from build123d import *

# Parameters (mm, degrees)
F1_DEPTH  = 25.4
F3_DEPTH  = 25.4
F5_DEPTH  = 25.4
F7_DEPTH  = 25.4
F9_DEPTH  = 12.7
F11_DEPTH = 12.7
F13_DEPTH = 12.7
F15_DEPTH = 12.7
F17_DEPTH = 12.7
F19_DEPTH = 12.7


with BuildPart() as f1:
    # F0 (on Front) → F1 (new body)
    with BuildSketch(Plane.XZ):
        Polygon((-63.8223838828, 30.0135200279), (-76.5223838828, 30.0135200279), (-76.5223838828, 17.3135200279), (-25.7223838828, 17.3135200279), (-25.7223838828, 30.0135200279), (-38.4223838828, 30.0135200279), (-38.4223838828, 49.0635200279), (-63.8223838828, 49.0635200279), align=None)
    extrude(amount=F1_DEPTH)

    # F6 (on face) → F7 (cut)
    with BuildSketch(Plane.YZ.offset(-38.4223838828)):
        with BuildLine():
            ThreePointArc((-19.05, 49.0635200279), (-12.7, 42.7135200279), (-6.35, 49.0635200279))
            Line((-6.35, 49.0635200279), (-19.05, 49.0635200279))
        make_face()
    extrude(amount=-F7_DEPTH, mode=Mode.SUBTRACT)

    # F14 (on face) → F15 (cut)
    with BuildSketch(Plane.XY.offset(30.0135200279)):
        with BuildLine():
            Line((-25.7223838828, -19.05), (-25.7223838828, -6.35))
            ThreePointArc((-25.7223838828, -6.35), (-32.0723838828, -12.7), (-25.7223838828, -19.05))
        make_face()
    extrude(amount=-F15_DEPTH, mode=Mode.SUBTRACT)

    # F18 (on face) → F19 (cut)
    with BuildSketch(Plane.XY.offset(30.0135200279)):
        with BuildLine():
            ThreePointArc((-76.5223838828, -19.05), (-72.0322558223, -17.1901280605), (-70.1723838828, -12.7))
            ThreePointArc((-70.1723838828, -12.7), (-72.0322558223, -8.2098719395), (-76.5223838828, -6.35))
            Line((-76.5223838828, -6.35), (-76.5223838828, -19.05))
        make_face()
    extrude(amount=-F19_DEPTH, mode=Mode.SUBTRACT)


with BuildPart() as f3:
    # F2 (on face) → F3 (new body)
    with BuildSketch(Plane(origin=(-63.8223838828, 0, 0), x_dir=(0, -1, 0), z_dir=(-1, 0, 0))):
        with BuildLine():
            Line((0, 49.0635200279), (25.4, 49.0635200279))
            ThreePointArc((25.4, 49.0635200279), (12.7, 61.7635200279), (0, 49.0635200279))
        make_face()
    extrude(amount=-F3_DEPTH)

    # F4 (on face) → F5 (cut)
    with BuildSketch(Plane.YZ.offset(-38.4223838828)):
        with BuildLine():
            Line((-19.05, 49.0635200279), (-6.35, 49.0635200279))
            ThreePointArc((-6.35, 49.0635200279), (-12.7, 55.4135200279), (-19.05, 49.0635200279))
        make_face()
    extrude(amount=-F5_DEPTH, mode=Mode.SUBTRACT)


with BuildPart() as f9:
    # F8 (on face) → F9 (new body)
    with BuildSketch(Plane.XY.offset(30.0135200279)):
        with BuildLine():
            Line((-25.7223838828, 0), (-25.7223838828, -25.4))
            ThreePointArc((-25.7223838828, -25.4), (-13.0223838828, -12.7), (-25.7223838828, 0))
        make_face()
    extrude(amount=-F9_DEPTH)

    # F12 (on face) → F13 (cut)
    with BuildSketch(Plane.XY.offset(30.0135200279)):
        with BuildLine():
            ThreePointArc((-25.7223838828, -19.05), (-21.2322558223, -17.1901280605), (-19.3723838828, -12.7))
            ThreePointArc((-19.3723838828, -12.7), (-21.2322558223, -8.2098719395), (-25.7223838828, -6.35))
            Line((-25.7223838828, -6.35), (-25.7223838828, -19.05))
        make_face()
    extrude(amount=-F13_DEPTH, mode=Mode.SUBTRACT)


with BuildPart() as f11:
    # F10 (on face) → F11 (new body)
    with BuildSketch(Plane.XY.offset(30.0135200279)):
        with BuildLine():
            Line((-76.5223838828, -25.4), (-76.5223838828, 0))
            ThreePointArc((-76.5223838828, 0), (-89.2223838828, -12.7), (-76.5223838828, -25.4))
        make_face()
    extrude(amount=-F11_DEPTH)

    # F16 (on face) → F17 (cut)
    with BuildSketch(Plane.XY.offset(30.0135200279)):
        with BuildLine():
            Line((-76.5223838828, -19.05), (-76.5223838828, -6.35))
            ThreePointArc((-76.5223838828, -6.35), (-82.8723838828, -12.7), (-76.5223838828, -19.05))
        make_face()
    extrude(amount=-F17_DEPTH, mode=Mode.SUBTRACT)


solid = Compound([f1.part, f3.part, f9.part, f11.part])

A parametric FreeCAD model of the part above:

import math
import FreeCAD as App
import Part
import Sketcher
Q = App.Units.Quantity


def add_polygon(sketch, points):
    """Adds a closed chain of lines whose ends are joined by coincident constraints."""
    first, n = sketch.GeometryCount, len(points)
    for a, b in zip(points, points[1:] + points[:1]):
        sketch.addGeometry(Part.LineSegment(App.Vector(*a, 0), App.Vector(*b, 0)), False)
    for i in range(n):
        sketch.addConstraint(Sketcher.Constraint("Coincident", first + i, 2, first + (i + 1) % n, 1))

doc = App.newDocument("Part")
body = doc.addObject("PartDesign::Body", "Body")

# Sketch on XZ plane
sketch1 = body.newObject("Sketcher::SketchObject", "Sketch")
sketch1.AttachmentSupport = (doc.getObject("XZ_Plane"), [""])
sketch1.MapMode = "FlatFace"
add_polygon(sketch1, [(-64, 30), (-77, 30), (-77, 17), (-26, 17), (-26, 30), (-38, 30), (-38, 49), (-64, 49)])  # lines 0-7
sketch1.addConstraint([
    Sketcher.Constraint("Horizontal", 0),
    Sketcher.Constraint("Vertical", 1),
    Sketcher.Constraint("Horizontal", 2),
    Sketcher.Constraint("Vertical", 3),
    Sketcher.Constraint("Horizontal", 4),
    Sketcher.Constraint("Vertical", 5),
    Sketcher.Constraint("Horizontal", 6),
    Sketcher.Constraint("Vertical", 7),
    Sketcher.Constraint("Horizontal", 0, 2, 3, 2),
    Sketcher.Constraint("Equal", 0, 4),
    Sketcher.Constraint("Equal", 4, 1),
    Sketcher.Constraint("DistanceX", 2, 1, 2, 2, Q("2 in")),
    Sketcher.Constraint("DistanceX", 6, 2, 6, 1, Q("1 in")),
    Sketcher.Constraint("DistanceY", 5, 1, 5, 2, Q("0.75 in")),
    Sketcher.Constraint("DistanceY", -1, 1, 0, 2, 30.01352),
    Sketcher.Constraint("DistanceX", 0, 2, -1, 1, 76.522384),
])
pad1 = body.newObject("PartDesign::Pad", "Pad")
pad1.Profile = sketch1
pad1.Length = Q("1 in")

# Sketch on YZ plane
sketch2 = body.newObject("Sketcher::SketchObject", "Sketch001")
sketch2.AttachmentSupport = (doc.getObject("YZ_Plane"), [""])
sketch2.MapMode = "FlatFace"
sketch2.AttachmentOffset = App.Placement(App.Vector(0, 0, -38.422384), App.Rotation())
sketch2.addGeometry([
    Part.ArcOfCircle(Part.Circle(App.Vector(-13, 49, 0), App.Vector(0, 0, 1), 6), math.radians(180), math.radians(360)),
    Part.LineSegment(App.Vector(-6, 49, 0), App.Vector(-19, 49, 0)),
], False)
sketch2.addConstraint([
    Sketcher.Constraint("Coincident", 0, 1, 1, 2),
    Sketcher.Constraint("Coincident", 1, 1, 0, 2),
    Sketcher.Constraint("Horizontal", 1),
    Sketcher.Constraint("Radius", 0, Q("0.25 in")),
    Sketcher.Constraint("DistanceX", 0, 3, -1, 1, Q("0.5 in")),
    Sketcher.Constraint("DistanceY", -1, 1, 0, 3, 49.06352),
    Sketcher.Constraint("DistanceY", -1, 1, 0, 1, 49.06352),
])
pocket1 = body.newObject("PartDesign::Pocket", "Pocket")
pocket1.Profile = sketch2
pocket1.Length = Q("1 in")

# Sketch on XY plane
sketch3 = body.newObject("Sketcher::SketchObject", "Sketch002")
sketch3.AttachmentSupport = (doc.getObject("XY_Plane"), [""])
sketch3.MapMode = "FlatFace"
sketch3.AttachmentOffset = App.Placement(App.Vector(0, 0, 30.01352), App.Rotation())
sketch3.addGeometry([
    Part.LineSegment(App.Vector(-26, -19, 0), App.Vector(-26, -6, 0)),
    Part.ArcOfCircle(Part.Circle(App.Vector(-26, -13, 0), App.Vector(0, 0, 1), 6), math.radians(90), math.radians(270)),
], False)
sketch3.addConstraint([
    Sketcher.Constraint("Coincident", 0, 1, 1, 2),
    Sketcher.Constraint("Coincident", 1, 1, 0, 2),
    Sketcher.Constraint("Vertical", 0),
    Sketcher.Constraint("Vertical", 1, 3, 0, 1),
    Sketcher.Constraint("Radius", 1, Q("0.25 in")),
    Sketcher.Constraint("DistanceY", 1, 3, -1, 1, Q("0.5 in")),
    Sketcher.Constraint("DistanceX", 1, 3, -1, 1, 25.722384),
])
pocket2 = body.newObject("PartDesign::Pocket", "Pocket001")
pocket2.Profile = sketch3
pocket2.Length = Q("0.5 in")

# Sketch on XY plane
sketch4 = body.newObject("Sketcher::SketchObject", "Sketch003")
sketch4.AttachmentSupport = (doc.getObject("XY_Plane"), [""])
sketch4.MapMode = "FlatFace"
sketch4.AttachmentOffset = App.Placement(App.Vector(0, 0, 30.01352), App.Rotation())
sketch4.addGeometry([
    Part.ArcOfCircle(Part.Circle(App.Vector(-77, -13, 0), App.Vector(0, 0, 1), 6), math.radians(-90), math.radians(0)),
    Part.ArcOfCircle(Part.Circle(App.Vector(-77, -13, 0), App.Vector(0, 0, 1), 6), math.radians(0), math.radians(90)),
    Part.LineSegment(App.Vector(-77, -6, 0), App.Vector(-77, -19, 0)),
], False)
sketch4.addConstraint([
    Sketcher.Constraint("Tangent", 0, 2, 1, 1),
    Sketcher.Constraint("Coincident", 1, 2, 2, 1),
    Sketcher.Constraint("Coincident", 2, 2, 0, 1),
    Sketcher.Constraint("Vertical", 2),
    Sketcher.Constraint("Equal", 0, 1),
    Sketcher.Constraint("Horizontal", 1, 3, 0, 2),
    Sketcher.Constraint("Vertical", 0, 3, 1, 2),
    Sketcher.Constraint("Radius", 0, Q("0.25 in")),
    Sketcher.Constraint("DistanceY", 0, 3, -1, 1, Q("0.5 in")),
    Sketcher.Constraint("DistanceX", 0, 3, -1, 1, 76.522384),
])
pocket3 = body.newObject("PartDesign::Pocket", "Pocket002")
pocket3.Profile = sketch4
pocket3.Length = Q("0.5 in")
body2 = doc.addObject("PartDesign::Body", "Body001")

# Sketch on YZ plane
sketch5 = body2.newObject("Sketcher::SketchObject", "Sketch004")
sketch5.AttachmentSupport = (doc.getObject("YZ_Plane001"), [""])
sketch5.MapMode = "FlatFace"
sketch5.AttachmentOffset = App.Placement(App.Vector(0, 0, -63.822384), App.Rotation())
sketch5.addGeometry([
    Part.LineSegment(App.Vector(0, 49, 0), App.Vector(-25, 49, 0)),
    Part.ArcOfCircle(Part.Circle(App.Vector(-13, 49, 0), App.Vector(0, 0, 1), 13), math.radians(0), math.radians(180)),
], False)
sketch5.addConstraint([
    Sketcher.Constraint("Coincident", 0, 1, 1, 1),
    Sketcher.Constraint("Coincident", 1, 2, 0, 2),
    Sketcher.Constraint("Horizontal", 0),
    Sketcher.Constraint("PointOnObject", 0, 1, -2),
    Sketcher.Constraint("Horizontal", 1, 3, 0, 1),
    Sketcher.Constraint("Radius", 1, Q("0.5 in")),
    Sketcher.Constraint("DistanceY", -1, 1, 1, 3, 49.06352),
])
pad2 = body2.newObject("PartDesign::Pad", "Pad001")
pad2.Profile = sketch5
pad2.Length = Q("1 in")

# Sketch on YZ plane
sketch6 = body2.newObject("Sketcher::SketchObject", "Sketch005")
sketch6.AttachmentSupport = (doc.getObject("YZ_Plane001"), [""])
sketch6.MapMode = "FlatFace"
sketch6.AttachmentOffset = App.Placement(App.Vector(0, 0, -38.422384), App.Rotation())
sketch6.addGeometry([
    Part.LineSegment(App.Vector(-19, 49, 0), App.Vector(-6, 49, 0)),
    Part.ArcOfCircle(Part.Circle(App.Vector(-13, 49, 0), App.Vector(0, 0, 1), 6), math.radians(0), math.radians(180)),
], False)
sketch6.addConstraint([
    Sketcher.Constraint("Coincident", 0, 1, 1, 2),
    Sketcher.Constraint("Coincident", 1, 1, 0, 2),
    Sketcher.Constraint("Horizontal", 0),
    Sketcher.Constraint("Horizontal", 1, 3, 0, 1),
    Sketcher.Constraint("Radius", 1, Q("0.25 in")),
    Sketcher.Constraint("DistanceX", 1, 3, -1, 1, Q("0.5 in")),
    Sketcher.Constraint("DistanceY", -1, 1, 1, 3, 49.06352),
])
pocket4 = body2.newObject("PartDesign::Pocket", "Pocket003")
pocket4.Profile = sketch6
pocket4.Length = Q("1 in")
body3 = doc.addObject("PartDesign::Body", "Body002")

# Sketch on XY plane
sketch7 = body3.newObject("Sketcher::SketchObject", "Sketch006")
sketch7.AttachmentSupport = (doc.getObject("XY_Plane002"), [""])
sketch7.MapMode = "FlatFace"
sketch7.AttachmentOffset = App.Placement(App.Vector(0, 0, 30.01352), App.Rotation())
sketch7.addGeometry([
    Part.LineSegment(App.Vector(-26, 0, 0), App.Vector(-26, -25, 0)),
    Part.ArcOfCircle(Part.Circle(App.Vector(-26, -13, 0), App.Vector(0, 0, 1), 13), math.radians(-90), math.radians(90)),
], False)
sketch7.addConstraint([
    Sketcher.Constraint("Coincident", 0, 1, 1, 2),
    Sketcher.Constraint("Coincident", 1, 1, 0, 2),
    Sketcher.Constraint("Vertical", 0),
    Sketcher.Constraint("PointOnObject", 0, 1, -1),
    Sketcher.Constraint("Vertical", 1, 3, 0, 1),
    Sketcher.Constraint("Radius", 1, Q("0.5 in")),
    Sketcher.Constraint("DistanceX", 1, 3, -1, 1, 25.722384),
])
pad3 = body3.newObject("PartDesign::Pad", "Pad002")
pad3.Profile = sketch7
pad3.Length = Q("0.5 in")
pad3.Reversed = True

# Sketch on XY plane
sketch8 = body3.newObject("Sketcher::SketchObject", "Sketch007")
sketch8.AttachmentSupport = (doc.getObject("XY_Plane002"), [""])
sketch8.MapMode = "FlatFace"
sketch8.AttachmentOffset = App.Placement(App.Vector(0, 0, 30.01352), App.Rotation())
sketch8.addGeometry([
    Part.ArcOfCircle(Part.Circle(App.Vector(-26, -13, 0), App.Vector(0, 0, 1), 6), math.radians(-90), math.radians(0)),
    Part.ArcOfCircle(Part.Circle(App.Vector(-26, -13, 0), App.Vector(0, 0, 1), 6), math.radians(0), math.radians(90)),
    Part.LineSegment(App.Vector(-26, -6, 0), App.Vector(-26, -19, 0)),
], False)
sketch8.addConstraint([
    Sketcher.Constraint("Tangent", 0, 2, 1, 1),
    Sketcher.Constraint("Coincident", 1, 2, 2, 1),
    Sketcher.Constraint("Coincident", 2, 2, 0, 1),
    Sketcher.Constraint("Vertical", 2),
    Sketcher.Constraint("Equal", 0, 1),
    Sketcher.Constraint("Horizontal", 1, 3, 0, 2),
    Sketcher.Constraint("Vertical", 0, 3, 1, 2),
    Sketcher.Constraint("Radius", 0, Q("0.25 in")),
    Sketcher.Constraint("DistanceY", 0, 3, -1, 1, Q("0.5 in")),
    Sketcher.Constraint("DistanceX", 0, 3, -1, 1, 25.722384),
])
pocket5 = body3.newObject("PartDesign::Pocket", "Pocket004")
pocket5.Profile = sketch8
pocket5.Length = Q("0.5 in")
body4 = doc.addObject("PartDesign::Body", "Body003")

# Sketch on XY plane
sketch9 = body4.newObject("Sketcher::SketchObject", "Sketch008")
sketch9.AttachmentSupport = (doc.getObject("XY_Plane003"), [""])
sketch9.MapMode = "FlatFace"
sketch9.AttachmentOffset = App.Placement(App.Vector(0, 0, 30.01352), App.Rotation())
sketch9.addGeometry([
    Part.LineSegment(App.Vector(-77, -25, 0), App.Vector(-77, 0, 0)),
    Part.ArcOfCircle(Part.Circle(App.Vector(-77, -13, 0), App.Vector(0, 0, 1), 13), math.radians(90), math.radians(270)),
], False)
sketch9.addConstraint([
    Sketcher.Constraint("Coincident", 0, 1, 1, 2),
    Sketcher.Constraint("Coincident", 1, 1, 0, 2),
    Sketcher.Constraint("Vertical", 0),
    Sketcher.Constraint("PointOnObject", 1, 1, -1),
    Sketcher.Constraint("Vertical", 1, 3, 0, 1),
    Sketcher.Constraint("Radius", 1, Q("0.5 in")),
    Sketcher.Constraint("DistanceX", 1, 3, -1, 1, 76.522384),
])
pad4 = body4.newObject("PartDesign::Pad", "Pad003")
pad4.Profile = sketch9
pad4.Length = Q("0.5 in")
pad4.Reversed = True

# Sketch on XY plane
sketch10 = body4.newObject("Sketcher::SketchObject", "Sketch009")
sketch10.AttachmentSupport = (doc.getObject("XY_Plane003"), [""])
sketch10.MapMode = "FlatFace"
sketch10.AttachmentOffset = App.Placement(App.Vector(0, 0, 30.01352), App.Rotation())
sketch10.addGeometry([
    Part.LineSegment(App.Vector(-77, -19, 0), App.Vector(-77, -6, 0)),
    Part.ArcOfCircle(Part.Circle(App.Vector(-77, -13, 0), App.Vector(0, 0, 1), 6), math.radians(90), math.radians(270)),
], False)
sketch10.addConstraint([
    Sketcher.Constraint("Coincident", 0, 1, 1, 2),
    Sketcher.Constraint("Coincident", 1, 1, 0, 2),
    Sketcher.Constraint("Vertical", 0),
    Sketcher.Constraint("Vertical", 1, 3, 0, 1),
    Sketcher.Constraint("Radius", 1, Q("0.25 in")),
    Sketcher.Constraint("DistanceY", 1, 3, -1, 1, Q("0.5 in")),
    Sketcher.Constraint("DistanceX", 1, 3, -1, 1, 76.522384),
])
pocket6 = body4.newObject("PartDesign::Pocket", "Pocket005")
pocket6.Profile = sketch10
pocket6.Length = Q("0.5 in")

doc.recompute()
